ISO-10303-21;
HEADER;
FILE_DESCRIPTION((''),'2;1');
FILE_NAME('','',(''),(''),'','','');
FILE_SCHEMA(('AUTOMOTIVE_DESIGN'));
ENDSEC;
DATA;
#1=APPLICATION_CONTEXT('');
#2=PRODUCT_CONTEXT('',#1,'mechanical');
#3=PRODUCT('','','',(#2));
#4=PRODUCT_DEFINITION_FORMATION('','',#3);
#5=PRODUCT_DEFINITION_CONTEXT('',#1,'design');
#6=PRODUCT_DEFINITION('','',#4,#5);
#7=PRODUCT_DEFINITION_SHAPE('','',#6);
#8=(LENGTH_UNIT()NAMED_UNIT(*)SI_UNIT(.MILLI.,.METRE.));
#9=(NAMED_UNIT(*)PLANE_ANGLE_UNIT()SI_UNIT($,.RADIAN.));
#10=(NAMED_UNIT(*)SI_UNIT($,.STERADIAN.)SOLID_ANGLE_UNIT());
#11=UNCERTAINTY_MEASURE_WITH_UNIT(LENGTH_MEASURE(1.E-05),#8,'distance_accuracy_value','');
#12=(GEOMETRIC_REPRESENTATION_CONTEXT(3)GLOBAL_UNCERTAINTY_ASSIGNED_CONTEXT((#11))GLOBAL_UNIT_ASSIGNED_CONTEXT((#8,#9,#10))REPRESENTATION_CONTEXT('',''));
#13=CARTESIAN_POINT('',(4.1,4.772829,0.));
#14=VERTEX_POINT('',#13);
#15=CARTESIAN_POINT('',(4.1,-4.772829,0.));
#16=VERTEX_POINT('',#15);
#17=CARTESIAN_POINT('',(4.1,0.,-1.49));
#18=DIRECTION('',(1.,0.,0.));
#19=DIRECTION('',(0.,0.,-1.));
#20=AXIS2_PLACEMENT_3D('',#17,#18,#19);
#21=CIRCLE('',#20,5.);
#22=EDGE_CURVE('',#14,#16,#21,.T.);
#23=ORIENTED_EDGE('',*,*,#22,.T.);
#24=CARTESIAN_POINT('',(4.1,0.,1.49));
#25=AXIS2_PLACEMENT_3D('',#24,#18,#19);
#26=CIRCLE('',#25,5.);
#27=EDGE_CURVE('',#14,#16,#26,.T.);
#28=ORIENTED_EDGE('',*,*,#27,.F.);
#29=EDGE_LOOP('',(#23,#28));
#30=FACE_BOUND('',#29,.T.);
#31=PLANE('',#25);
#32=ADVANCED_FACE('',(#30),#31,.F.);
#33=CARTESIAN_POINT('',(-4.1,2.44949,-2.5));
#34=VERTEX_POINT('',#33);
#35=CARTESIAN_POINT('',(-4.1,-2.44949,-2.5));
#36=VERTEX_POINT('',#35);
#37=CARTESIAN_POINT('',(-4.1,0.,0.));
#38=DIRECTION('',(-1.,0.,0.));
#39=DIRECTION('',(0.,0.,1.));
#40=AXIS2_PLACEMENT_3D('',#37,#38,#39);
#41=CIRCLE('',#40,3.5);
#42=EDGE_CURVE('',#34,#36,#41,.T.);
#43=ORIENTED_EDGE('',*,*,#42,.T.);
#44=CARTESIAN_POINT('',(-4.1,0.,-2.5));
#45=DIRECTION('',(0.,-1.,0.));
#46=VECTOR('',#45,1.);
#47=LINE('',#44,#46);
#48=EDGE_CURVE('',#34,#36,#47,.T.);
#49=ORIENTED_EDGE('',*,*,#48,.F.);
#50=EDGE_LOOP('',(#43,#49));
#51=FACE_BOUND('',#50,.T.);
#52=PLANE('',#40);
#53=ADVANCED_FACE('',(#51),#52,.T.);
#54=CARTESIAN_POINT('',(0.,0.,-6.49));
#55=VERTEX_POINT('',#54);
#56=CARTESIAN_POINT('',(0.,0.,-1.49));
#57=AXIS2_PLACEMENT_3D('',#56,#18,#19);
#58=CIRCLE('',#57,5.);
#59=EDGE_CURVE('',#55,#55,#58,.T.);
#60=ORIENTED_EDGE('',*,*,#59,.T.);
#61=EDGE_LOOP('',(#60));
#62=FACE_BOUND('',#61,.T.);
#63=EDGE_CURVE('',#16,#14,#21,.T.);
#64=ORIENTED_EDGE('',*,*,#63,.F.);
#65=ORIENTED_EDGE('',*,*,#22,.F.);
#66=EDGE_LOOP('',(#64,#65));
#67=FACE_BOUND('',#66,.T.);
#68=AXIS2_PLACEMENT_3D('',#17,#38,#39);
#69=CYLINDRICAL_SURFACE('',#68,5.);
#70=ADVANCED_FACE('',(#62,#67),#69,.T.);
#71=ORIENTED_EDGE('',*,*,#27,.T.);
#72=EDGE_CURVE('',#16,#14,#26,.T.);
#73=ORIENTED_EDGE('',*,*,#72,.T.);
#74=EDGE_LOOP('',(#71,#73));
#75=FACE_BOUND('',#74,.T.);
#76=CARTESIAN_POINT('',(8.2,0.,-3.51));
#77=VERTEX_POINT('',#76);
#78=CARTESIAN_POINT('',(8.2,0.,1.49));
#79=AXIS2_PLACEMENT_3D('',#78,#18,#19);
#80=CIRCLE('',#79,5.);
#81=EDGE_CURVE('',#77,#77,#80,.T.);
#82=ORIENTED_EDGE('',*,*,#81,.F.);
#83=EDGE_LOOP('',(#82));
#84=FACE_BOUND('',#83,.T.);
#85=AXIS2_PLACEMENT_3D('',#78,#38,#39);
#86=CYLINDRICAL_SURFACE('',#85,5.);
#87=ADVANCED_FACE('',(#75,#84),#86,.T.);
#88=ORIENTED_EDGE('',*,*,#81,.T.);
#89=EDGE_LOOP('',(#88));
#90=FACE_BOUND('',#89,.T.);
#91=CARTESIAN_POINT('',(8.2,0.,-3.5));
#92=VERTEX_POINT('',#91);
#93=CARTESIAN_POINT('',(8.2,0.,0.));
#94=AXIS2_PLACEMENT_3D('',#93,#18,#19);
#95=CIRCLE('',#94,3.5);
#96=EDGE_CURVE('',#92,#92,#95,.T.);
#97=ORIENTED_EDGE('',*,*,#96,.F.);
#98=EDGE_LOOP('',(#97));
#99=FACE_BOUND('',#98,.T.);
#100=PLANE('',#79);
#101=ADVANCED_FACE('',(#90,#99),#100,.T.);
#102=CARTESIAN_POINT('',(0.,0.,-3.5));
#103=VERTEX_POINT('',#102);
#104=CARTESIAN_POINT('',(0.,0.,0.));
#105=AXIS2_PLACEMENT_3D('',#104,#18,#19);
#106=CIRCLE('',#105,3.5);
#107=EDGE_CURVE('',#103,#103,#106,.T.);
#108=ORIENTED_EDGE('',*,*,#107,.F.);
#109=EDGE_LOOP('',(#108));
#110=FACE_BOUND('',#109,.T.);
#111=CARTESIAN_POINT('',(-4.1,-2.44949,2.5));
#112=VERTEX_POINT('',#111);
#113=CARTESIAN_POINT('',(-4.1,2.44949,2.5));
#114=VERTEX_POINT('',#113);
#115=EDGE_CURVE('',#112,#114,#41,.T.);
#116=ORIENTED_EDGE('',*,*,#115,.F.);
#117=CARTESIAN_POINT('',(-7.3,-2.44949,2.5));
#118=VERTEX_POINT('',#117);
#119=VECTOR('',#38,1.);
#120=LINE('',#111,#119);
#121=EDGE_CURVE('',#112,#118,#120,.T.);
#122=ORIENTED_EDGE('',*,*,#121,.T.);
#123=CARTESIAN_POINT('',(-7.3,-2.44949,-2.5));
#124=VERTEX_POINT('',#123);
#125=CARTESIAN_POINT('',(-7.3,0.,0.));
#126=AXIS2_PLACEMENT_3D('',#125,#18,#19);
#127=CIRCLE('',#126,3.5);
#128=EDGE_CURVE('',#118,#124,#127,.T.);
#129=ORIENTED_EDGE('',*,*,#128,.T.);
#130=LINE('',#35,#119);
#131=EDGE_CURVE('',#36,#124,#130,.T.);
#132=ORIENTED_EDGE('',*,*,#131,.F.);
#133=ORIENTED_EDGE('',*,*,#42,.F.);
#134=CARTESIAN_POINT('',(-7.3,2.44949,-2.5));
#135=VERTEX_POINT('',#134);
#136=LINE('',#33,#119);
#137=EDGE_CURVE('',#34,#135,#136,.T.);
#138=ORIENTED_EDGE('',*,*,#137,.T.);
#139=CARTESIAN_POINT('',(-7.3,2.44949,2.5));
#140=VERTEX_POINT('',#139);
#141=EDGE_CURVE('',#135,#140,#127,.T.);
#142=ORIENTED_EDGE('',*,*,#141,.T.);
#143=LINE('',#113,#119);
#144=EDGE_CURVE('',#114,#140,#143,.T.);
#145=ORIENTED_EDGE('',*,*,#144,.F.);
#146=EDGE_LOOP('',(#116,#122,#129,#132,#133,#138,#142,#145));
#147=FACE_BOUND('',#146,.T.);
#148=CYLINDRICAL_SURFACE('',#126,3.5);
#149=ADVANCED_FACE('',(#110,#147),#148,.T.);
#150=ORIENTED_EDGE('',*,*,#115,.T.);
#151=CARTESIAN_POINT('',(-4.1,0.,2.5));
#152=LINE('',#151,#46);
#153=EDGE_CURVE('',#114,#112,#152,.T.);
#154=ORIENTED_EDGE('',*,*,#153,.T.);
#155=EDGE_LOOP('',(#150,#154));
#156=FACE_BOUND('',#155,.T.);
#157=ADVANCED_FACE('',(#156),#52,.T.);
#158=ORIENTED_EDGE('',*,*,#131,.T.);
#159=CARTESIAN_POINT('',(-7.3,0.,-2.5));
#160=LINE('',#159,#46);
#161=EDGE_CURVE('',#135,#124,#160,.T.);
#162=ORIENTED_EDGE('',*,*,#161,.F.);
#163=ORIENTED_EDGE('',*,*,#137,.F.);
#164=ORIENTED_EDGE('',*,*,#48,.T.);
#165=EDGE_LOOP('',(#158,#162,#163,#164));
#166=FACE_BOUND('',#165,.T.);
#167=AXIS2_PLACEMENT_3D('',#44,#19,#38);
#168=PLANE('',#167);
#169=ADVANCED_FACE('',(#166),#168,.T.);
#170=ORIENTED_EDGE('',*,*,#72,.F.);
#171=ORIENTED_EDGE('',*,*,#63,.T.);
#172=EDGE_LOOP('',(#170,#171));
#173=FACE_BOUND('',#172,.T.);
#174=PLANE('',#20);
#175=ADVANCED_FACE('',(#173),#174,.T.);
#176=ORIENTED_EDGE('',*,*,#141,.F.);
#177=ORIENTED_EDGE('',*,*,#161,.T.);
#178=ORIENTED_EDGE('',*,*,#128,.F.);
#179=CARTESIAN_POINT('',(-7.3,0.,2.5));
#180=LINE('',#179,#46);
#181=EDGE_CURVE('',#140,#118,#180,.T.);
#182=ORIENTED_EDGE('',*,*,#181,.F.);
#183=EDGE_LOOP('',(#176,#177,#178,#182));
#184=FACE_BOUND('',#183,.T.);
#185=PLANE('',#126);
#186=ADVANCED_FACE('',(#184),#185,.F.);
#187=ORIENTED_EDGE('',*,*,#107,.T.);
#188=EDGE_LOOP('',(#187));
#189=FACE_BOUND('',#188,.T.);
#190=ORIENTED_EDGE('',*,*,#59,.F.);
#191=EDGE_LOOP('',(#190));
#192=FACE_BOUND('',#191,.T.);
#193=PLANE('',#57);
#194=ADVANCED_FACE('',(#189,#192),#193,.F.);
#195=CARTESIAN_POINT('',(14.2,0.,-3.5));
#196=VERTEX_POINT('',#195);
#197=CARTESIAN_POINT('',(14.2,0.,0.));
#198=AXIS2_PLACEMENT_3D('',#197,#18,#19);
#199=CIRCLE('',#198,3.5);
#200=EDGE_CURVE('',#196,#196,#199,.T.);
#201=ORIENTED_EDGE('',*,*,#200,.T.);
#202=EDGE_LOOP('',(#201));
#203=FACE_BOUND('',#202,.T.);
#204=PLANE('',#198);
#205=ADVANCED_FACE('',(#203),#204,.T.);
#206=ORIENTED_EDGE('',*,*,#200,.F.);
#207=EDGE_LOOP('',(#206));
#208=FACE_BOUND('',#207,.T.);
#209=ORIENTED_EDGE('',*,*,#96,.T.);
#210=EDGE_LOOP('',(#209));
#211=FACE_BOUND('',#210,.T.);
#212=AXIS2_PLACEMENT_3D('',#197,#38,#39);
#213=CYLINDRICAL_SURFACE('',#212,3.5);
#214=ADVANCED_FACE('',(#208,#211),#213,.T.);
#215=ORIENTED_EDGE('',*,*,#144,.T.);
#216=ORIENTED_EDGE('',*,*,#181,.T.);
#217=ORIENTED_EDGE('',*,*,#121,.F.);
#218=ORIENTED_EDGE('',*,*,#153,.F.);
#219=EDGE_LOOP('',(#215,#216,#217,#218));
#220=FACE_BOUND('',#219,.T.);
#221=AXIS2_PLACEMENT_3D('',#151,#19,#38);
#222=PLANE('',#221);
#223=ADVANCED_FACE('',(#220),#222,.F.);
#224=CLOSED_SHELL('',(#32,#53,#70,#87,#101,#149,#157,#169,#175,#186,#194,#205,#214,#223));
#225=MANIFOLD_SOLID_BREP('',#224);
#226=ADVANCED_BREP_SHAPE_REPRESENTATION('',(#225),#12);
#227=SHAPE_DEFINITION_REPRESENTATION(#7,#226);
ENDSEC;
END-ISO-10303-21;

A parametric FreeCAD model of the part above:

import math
import FreeCAD as App
import Part
import Sketcher

V = App.Vector

doc = App.newDocument("Part")
params = doc.addObject("Spreadsheet::Sheet", "Params")
for row, (alias, value) in enumerate([
    ("sketch1_diameter", "7 mm"),
    ("pad1_length", "7.3 mm"),
    ("sketch2_diameter", "10 mm"),
    ("pad2_length", "4.1 mm"),
    ("sketch3_diameter", "10 mm"),
    ("pad3_length", "4.1 mm"),
    ("sketch4_diameter", "7 mm"),
    ("pad4_length", "6 mm"),
    ("sketch5_radius", "3.5 mm"),
    ("pocket1_length", "3.2 mm"),
], start=1):
    params.set(f"A{row}", alias)
    params.set(f"B{row}", "=" + value)
    params.setAlias(f"B{row}", alias)

body = doc.addObject("PartDesign::Body", "Body")

# Sketch on YZ plane
sketch1 = body.newObject("Sketcher::SketchObject", "Sketch")
sketch1.AttachmentSupport = (doc.getObject("YZ_Plane"), [""])
sketch1.MapMode = "FlatFace"
sketch1.addGeometry(Part.Circle(V(0, 0, 0), V(0, 0, 1), 3.5), False)
sketch1.addConstraint(Sketcher.Constraint("Coincident", 0, 3, -1, 1))
sketch1.addConstraint(Sketcher.Constraint("Diameter", 0, 7.0))
sketch1.setExpression("Constraints[1]", "Params.sketch1_diameter")
pad1 = body.newObject("PartDesign::Pad", "Pad")
pad1.Profile = sketch1
pad1.setExpression("Length", "Params.pad1_length")
pad1.Reversed = True

# Sketch on YZ plane
sketch2 = body.newObject("Sketcher::SketchObject", "Sketch001")
sketch2.AttachmentSupport = (doc.getObject("YZ_Plane"), [""])
sketch2.MapMode = "FlatFace"
sketch2.addGeometry(Part.Circle(V(0, -1, 0), V(0, 0, 1), 5), False)
sketch2.addConstraint(Sketcher.Constraint("PointOnObject", 0, 3, -2))
sketch2.addConstraint(Sketcher.Constraint("Diameter", 0, 10.0))
sketch2.addConstraint(Sketcher.Constraint("DistanceY", 0, 3, -1, 1, 1.49))
sketch2.setExpression("Constraints[1]", "Params.sketch2_diameter")
pad2 = body.newObject("PartDesign::Pad", "Pad001")
pad2.Profile = sketch2
pad2.setExpression("Length", "Params.pad2_length")

# Sketch on YZ plane
sketch3 = body.newObject("Sketcher::SketchObject", "Sketch002")
sketch3.AttachmentSupport = (doc.getObject("YZ_Plane"), [""])
sketch3.MapMode = "FlatFace"
sketch3.AttachmentOffset = App.Placement(V(0, 0, 4.1), App.Rotation())
sketch3.addGeometry(Part.Circle(V(0, 1, 0), V(0, 0, 1), 5), False)
sketch3.addConstraint(Sketcher.Constraint("PointOnObject", 0, 3, -2))
sketch3.addConstraint(Sketcher.Constraint("Diameter", 0, 10.0))
sketch3.addConstraint(Sketcher.Constraint("DistanceY", -1, 1, 0, 3, 1.49))
sketch3.setExpression("Constraints[1]", "Params.sketch3_diameter")
pad3 = body.newObject("PartDesign::Pad", "Pad002")
pad3.Profile = sketch3
pad3.setExpression("Length", "Params.pad3_length")

# Sketch on YZ plane
sketch4 = body.newObject("Sketcher::SketchObject", "Sketch003")
sketch4.AttachmentSupport = (doc.getObject("YZ_Plane"), [""])
sketch4.MapMode = "FlatFace"
sketch4.AttachmentOffset = App.Placement(V(0, 0, 14.2), App.Rotation())
sketch4.addGeometry(Part.Circle(V(0, 0, 0), V(0, 0, 1), 3.5), False)
sketch4.addConstraint(Sketcher.Constraint("Coincident", 0, 3, -1, 1))
sketch4.addConstraint(Sketcher.Constraint("Diameter", 0, 7.0))
sketch4.setExpression("Constraints[1]", "Params.sketch4_diameter")
pad4 = body.newObject("PartDesign::Pad", "Pad003")
pad4.Profile = sketch4
pad4.setExpression("Length", "Params.pad4_length")
pad4.Reversed = True

# Sketch on YZ plane
sketch5 = body.newObject("Sketcher::SketchObject", "Sketch004")
sketch5.AttachmentSupport = (doc.getObject("YZ_Plane"), [""])
sketch5.MapMode = "FlatFace"
sketch5.AttachmentOffset = App.Placement(V(0, 0, -4.1), App.Rotation())
sketch5.addGeometry(Part.ArcOfCircle(Part.Circle(V(0, 0, 0), V(0, 0, 1), 3.5), math.radians(-134), math.radians(-90)), False)
sketch5.addGeometry(Part.LineSegment(V(-2.4, -2.5, 0), V(2.4, -2.5, 0)), False)
sketch5.addGeometry(Part.ArcOfCircle(Part.Circle(V(0, 0, 0), V(0, 0, 1), 3.5), math.radians(-90), math.radians(-46)), False)
sketch5.addGeometry(Part.ArcOfCircle(Part.Circle(V(0, 0, 0), V(0, 0, 1), 3.5), math.radians(90), math.radians(134)), False)
sketch5.addGeometry(Part.ArcOfCircle(Part.Circle(V(0, 0, 0), V(0, 0, 1), 3.5), math.radians(46), math.radians(90)), False)
sketch5.addGeometry(Part.LineSegment(V(2.4, 2.5, 0), V(-2.4, 2.5, 0)), False)
sketch5.addConstraint(Sketcher.Constraint("Coincident", 0, 1, 1, 1))
sketch5.addConstraint(Sketcher.Constraint("Coincident", 1, 2, 2, 2))
sketch5.addConstraint(Sketcher.Constraint("Tangent", 2, 1, 0, 2))
sketch5.addConstraint(Sketcher.Constraint("Tangent", 3, 1, 4, 2))
sketch5.addConstraint(Sketcher.Constraint("Coincident", 4, 1, 5, 1))
sketch5.addConstraint(Sketcher.Constraint("Coincident", 5, 2, 3, 2))
sketch5.addConstraint(Sketcher.Constraint("Horizontal", 1))
sketch5.addConstraint(Sketcher.Constraint("Horizontal", 5))
sketch5.addConstraint(Sketcher.Constraint("Coincident", 0, 3, -1, 1))
sketch5.addConstraint(Sketcher.Constraint("Coincident", 3, 3, -1, 1))
sketch5.addConstraint(Sketcher.Constraint("Equal", 0, 2))
sketch5.addConstraint(Sketcher.Constraint("Equal", 2, 3))
sketch5.addConstraint(Sketcher.Constraint("Equal", 3, 4))
sketch5.addConstraint(Sketcher.Constraint("PointOnObject", 2, 1, -2))
sketch5.addConstraint(Sketcher.Constraint("PointOnObject", 3, 1, -2))
sketch5.addConstraint(Sketcher.Constraint("Vertical", 1, 2, 4, 1))
sketch5.addConstraint(Sketcher.Constraint("Radius", 0, 3.5))
sketch5.addConstraint(Sketcher.Constraint("DistanceY", 2, 1, 1, 2, 1.0))
sketch5.setExpression("Constraints[16]", "Params.sketch5_radius")
pocket1 = body.newObject("PartDesign::Pocket", "Pocket")
pocket1.Profile = sketch5
pocket1.setExpression("Length", "Params.pocket1_length")

doc.recompute()
